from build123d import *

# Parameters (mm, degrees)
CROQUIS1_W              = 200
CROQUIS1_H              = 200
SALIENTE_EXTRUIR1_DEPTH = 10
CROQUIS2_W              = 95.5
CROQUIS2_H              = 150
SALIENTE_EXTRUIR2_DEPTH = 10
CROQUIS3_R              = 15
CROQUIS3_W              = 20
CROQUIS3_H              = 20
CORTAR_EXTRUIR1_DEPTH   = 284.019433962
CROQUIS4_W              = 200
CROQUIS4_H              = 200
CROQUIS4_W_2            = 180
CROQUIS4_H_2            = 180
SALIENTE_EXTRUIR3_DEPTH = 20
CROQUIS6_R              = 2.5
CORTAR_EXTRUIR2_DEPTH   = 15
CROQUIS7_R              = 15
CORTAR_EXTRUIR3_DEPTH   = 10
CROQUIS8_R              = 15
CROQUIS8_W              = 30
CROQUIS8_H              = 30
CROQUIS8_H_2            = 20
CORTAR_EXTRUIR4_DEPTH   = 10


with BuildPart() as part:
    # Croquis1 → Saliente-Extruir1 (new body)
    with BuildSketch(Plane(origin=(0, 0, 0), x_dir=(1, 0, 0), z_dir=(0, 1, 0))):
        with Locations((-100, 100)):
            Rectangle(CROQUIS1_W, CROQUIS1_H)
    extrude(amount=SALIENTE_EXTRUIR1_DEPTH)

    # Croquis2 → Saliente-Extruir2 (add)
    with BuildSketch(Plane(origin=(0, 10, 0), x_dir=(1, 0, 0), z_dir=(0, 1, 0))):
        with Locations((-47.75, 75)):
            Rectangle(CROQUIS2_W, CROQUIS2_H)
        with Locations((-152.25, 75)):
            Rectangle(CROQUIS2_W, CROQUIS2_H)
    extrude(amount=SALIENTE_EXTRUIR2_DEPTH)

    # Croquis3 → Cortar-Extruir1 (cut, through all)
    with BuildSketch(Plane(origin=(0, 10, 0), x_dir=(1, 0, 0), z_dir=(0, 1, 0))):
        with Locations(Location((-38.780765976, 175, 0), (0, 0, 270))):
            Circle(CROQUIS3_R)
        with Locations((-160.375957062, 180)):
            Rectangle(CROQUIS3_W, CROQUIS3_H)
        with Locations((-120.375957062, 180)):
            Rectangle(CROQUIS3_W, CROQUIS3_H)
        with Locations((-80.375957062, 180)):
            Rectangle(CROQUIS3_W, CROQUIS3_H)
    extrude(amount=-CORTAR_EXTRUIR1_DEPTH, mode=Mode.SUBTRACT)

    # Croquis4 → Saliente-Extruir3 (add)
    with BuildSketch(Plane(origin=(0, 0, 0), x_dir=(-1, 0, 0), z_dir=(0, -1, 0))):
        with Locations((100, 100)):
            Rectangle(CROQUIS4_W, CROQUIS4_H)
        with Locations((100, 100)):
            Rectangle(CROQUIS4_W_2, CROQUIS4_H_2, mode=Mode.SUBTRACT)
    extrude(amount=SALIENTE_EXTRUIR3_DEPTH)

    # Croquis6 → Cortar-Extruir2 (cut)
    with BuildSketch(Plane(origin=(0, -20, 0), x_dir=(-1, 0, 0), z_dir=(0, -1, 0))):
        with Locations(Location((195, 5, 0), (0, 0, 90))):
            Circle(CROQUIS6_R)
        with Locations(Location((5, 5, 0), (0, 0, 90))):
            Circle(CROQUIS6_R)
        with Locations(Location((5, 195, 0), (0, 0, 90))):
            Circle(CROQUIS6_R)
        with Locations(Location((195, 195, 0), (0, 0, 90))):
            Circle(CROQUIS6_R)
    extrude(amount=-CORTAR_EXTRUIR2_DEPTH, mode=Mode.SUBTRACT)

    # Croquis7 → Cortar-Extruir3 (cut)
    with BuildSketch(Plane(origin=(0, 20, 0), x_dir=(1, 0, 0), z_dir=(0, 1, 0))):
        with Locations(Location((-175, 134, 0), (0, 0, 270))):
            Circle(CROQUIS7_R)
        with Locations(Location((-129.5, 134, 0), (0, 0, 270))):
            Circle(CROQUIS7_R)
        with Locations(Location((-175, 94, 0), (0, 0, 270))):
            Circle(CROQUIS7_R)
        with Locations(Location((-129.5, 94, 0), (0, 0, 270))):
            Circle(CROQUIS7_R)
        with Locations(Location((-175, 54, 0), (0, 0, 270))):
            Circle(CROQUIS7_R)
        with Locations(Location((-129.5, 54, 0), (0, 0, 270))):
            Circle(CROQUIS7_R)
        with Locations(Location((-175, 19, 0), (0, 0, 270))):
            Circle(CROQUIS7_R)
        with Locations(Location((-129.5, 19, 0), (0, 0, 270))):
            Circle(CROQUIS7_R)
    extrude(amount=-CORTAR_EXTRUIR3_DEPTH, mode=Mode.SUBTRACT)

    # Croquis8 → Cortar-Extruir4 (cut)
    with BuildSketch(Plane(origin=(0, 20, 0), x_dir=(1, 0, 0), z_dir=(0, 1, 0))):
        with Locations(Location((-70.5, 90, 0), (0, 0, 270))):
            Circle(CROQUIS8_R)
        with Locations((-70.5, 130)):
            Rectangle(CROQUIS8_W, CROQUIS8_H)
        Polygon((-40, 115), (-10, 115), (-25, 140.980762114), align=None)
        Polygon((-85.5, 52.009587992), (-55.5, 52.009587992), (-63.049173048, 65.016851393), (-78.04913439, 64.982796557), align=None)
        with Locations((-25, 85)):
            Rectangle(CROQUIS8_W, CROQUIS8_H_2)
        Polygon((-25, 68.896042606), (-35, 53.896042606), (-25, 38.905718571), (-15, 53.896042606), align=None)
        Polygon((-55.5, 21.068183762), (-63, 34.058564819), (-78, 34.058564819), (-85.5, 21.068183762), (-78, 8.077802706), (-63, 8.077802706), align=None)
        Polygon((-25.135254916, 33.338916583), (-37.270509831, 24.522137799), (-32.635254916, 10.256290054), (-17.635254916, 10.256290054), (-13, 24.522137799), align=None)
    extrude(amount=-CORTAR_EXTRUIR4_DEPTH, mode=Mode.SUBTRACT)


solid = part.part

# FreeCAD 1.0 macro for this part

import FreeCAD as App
import Part
import Sketcher
from FreeCAD import Vector
Q = App.Units.Quantity


def add_polygon(sketch, points):
    """Adds a closed chain of lines whose ends are joined by coincident constraints."""
    first, n = sketch.GeometryCount, len(points)
    for a, b in zip(points, points[1:] + points[:1]):
        sketch.addGeometry(Part.LineSegment(App.Vector(*a, 0), App.Vector(*b, 0)), False)
    for i in range(n):
        sketch.addConstraint(Sketcher.Constraint("Coincident", first + i, 2, first + (i + 1) % n, 1))

doc = App.newDocument("Part")
body = doc.addObject("PartDesign::Body", "Body")

# Sketch on XZ plane
sketch1 = body.newObject("Sketcher::SketchObject", "Sketch")
sketch1.AttachmentSupport = (doc.getObject("XZ_Plane"), [""])
sketch1.MapMode = "FlatFace"
add_polygon(sketch1, [(-200, -200), (-200, 0), (0, 0), (0, -200)])  # lines 0-3
sketch1.addConstraint([
    Sketcher.Constraint("Vertical", 0),
    Sketcher.Constraint("Horizontal", 1),
    Sketcher.Constraint("Vertical", 2),
    Sketcher.Constraint("Horizontal", 3),
    Sketcher.Constraint("Coincident", 1, 2, -1, 1),
    Sketcher.Constraint("Equal", 3, 0),
    Sketcher.Constraint("DistanceX", 1, 1, 1, 2, 200.0),
])
pad1 = body.newObject("PartDesign::Pad", "Pad")
pad1.Profile = sketch1
pad1.Length = 10
pad1.Reversed = True

# Sketch on XZ plane
sketch2 = body.newObject("Sketcher::SketchObject", "Sketch001")
sketch2.AttachmentSupport = (doc.getObject("XZ_Plane"), [""])
sketch2.MapMode = "FlatFace"
sketch2.AttachmentOffset = App.Placement(Vector(0, 0, -10), App.Rotation())
add_polygon(sketch2, [(-96, -150), (-96, 0), (0, 0), (0, -150)])  # lines 0-3
add_polygon(sketch2, [(-200, -150), (-200, 0), (-104, 0), (-104, -150)])  # lines 4-7
sketch2.addConstraint([
    Sketcher.Constraint("Vertical", 0),
    Sketcher.Constraint("Horizontal", 1),
    Sketcher.Constraint("Vertical", 2),
    Sketcher.Constraint("Horizontal", 3),
    Sketcher.Constraint("Vertical", 4),
    Sketcher.Constraint("Horizontal", 5),
    Sketcher.Constraint("Vertical", 6),
    Sketcher.Constraint("Horizontal", 7),
    Sketcher.Constraint("Coincident", 1, 2, -1, 1),
    Sketcher.Constraint("PointOnObject", 4, 2, -1),
    Sketcher.Constraint("Horizontal", 3, 2, 6, 2),
    Sketcher.Constraint("Equal", 3, 5),
    Sketcher.Constraint("DistanceY", 0, 1, 0, 2, 150.0),
    Sketcher.Constraint("DistanceX", 1, 1, 1, 2, 95.5),
    Sketcher.Constraint("DistanceX", 4, 2, -1, 1, 200.0),
])
pad2 = body.newObject("PartDesign::Pad", "Pad001")
pad2.Profile = sketch2
pad2.Length = 10
pad2.Reversed = True

# Sketch on XZ plane
sketch3 = body.newObject("Sketcher::SketchObject", "Sketch002")
sketch3.AttachmentSupport = (doc.getObject("XZ_Plane"), [""])
sketch3.MapMode = "FlatFace"
sketch3.AttachmentOffset = App.Placement(Vector(0, 0, -10), App.Rotation())
sketch3.addGeometry(Part.Circle(Vector(-39, -175, 0), Vector(0, 0, 1), 15), False)  # 0
add_polygon(sketch3, [(-170, -190), (-170, -170), (-150, -170), (-150, -190)])  # lines 1-4
add_polygon(sketch3, [(-130, -190), (-130, -170), (-110, -170), (-110, -190)])  # lines 5-8
add_polygon(sketch3, [(-90, -190), (-90, -170), (-70, -170), (-70, -190)])  # lines 9-12
sketch3.addConstraint([
    Sketcher.Constraint("Vertical", 1),
    Sketcher.Constraint("Horizontal", 2),
    Sketcher.Constraint("Vertical", 3),
    Sketcher.Constraint("Horizontal", 4),
    Sketcher.Constraint("Vertical", 5),
    Sketcher.Constraint("Horizontal", 6),
    Sketcher.Constraint("Vertical", 7),
    Sketcher.Constraint("Horizontal", 8),
    Sketcher.Constraint("Vertical", 9),
    Sketcher.Constraint("Horizontal", 10),
    Sketcher.Constraint("Vertical", 11),
    Sketcher.Constraint("Horizontal", 12),
    Sketcher.Constraint("Horizontal", 2, 2, 5, 2),
    Sketcher.Constraint("Horizontal", 4, 2, 7, 2),
    Sketcher.Constraint("Horizontal", 6, 2, 9, 2),
    Sketcher.Constraint("Horizontal", 8, 2, 11, 2),
    Sketcher.Constraint("Equal", 4, 6),
    Sketcher.Constraint("Equal", 8, 10),
    Sketcher.Constraint("Equal", 12, 1),
    Sketcher.Constraint("Diameter", 0, 30.0),
    Sketcher.Constraint("DistanceX", 2, 1, 2, 2, 20.0),
    Sketcher.Constraint("DistanceY", 0, 3, -1, 1, 175.0),
    Sketcher.Constraint("DistanceY", 1, 2, -1, 1, 170.0),
    Sketcher.Constraint("DistanceX", 2, 2, 5, 2, 20.0),
    Sketcher.Constraint("DistanceX", 6, 2, 9, 2, 20.0),
    Sketcher.Constraint("DistanceX", 1, 2, 0, 3, 131.595191),
    Sketcher.Constraint("DistanceX", 0, 3, -1, 1, 38.780766),
])
pocket1 = body.newObject("PartDesign::Pocket", "Pocket")
pocket1.Profile = sketch3
pocket1.Type = "ThroughAll"
pocket1.Reversed = True

# Sketch on XZ plane
sketch4 = body.newObject("Sketcher::SketchObject", "Sketch003")
sketch4.AttachmentSupport = (doc.getObject("XZ_Plane"), [""])
sketch4.MapMode = "FlatFace"
add_polygon(sketch4, [(0, -200), (0, 0), (-200, 0), (-200, -200)])  # lines 0-3
add_polygon(sketch4, [(-190, -10), (-10, -10), (-10, -190), (-190, -190)])  # lines 4-7
sketch4.addConstraint([
    Sketcher.Constraint("Vertical", 0),
    Sketcher.Constraint("Horizontal", 1),
    Sketcher.Constraint("Vertical", 2),
    Sketcher.Constraint("Horizontal", 3),
    Sketcher.Constraint("Horizontal", 4),
    Sketcher.Constraint("Vertical", 5),
    Sketcher.Constraint("Horizontal", 6),
    Sketcher.Constraint("Vertical", 7),
    Sketcher.Constraint("Coincident", 0, 2, -1, 1),
    Sketcher.Constraint("Equal", 3, 0),
    Sketcher.Constraint("Equal", 6, 5),
    Sketcher.Constraint("DistanceX", 1, 2, 1, 1, 200.0),
    Sketcher.Constraint("DistanceX", 4, 1, 4, 2, 180.0),
    Sketcher.Constraint("DistanceX", 4, 2, -1, 1, 10.0),
    Sketcher.Constraint("DistanceY", 4, 2, -1, 1, 10.0),
])
pad3 = body.newObject("PartDesign::Pad", "Pad002")
pad3.Profile = sketch4
pad3.Length = 20

# Sketch on XZ plane
sketch5 = body.newObject("Sketcher::SketchObject", "Sketch004")
sketch5.AttachmentSupport = (doc.getObject("XZ_Plane"), [""])
sketch5.MapMode = "FlatFace"
sketch5.AttachmentOffset = App.Placement(Vector(0, 0, 20), App.Rotation())
sketch5.addGeometry([
    Part.Circle(Vector(-195, -5, 0), Vector(0, 0, 1), 2.5),
    Part.Circle(Vector(-5, -5, 0), Vector(0, 0, 1), 2.5),
    Part.Circle(Vector(-5, -195, 0), Vector(0, 0, 1), 2.5),
    Part.Circle(Vector(-195, -195, 0), Vector(0, 0, 1), 2.5),
], False)
sketch5.addConstraint([
    Sketcher.Constraint("Equal", 0, 1),
    Sketcher.Constraint("Equal", 1, 2),
    Sketcher.Constraint("Equal", 2, 3),
    Sketcher.Constraint("Horizontal", 0, 3, 1, 3),
    Sketcher.Constraint("Horizontal", 2, 3, 3, 3),
    Sketcher.Constraint("Vertical", 1, 3, 2, 3),
    Sketcher.Constraint("Vertical", 0, 3, 3, 3),
    Sketcher.Constraint("Diameter", 0, 5.0),
    Sketcher.Constraint("DistanceX", 0, 3, -1, 1, 195.0),
    Sketcher.Constraint("DistanceY", 0, 3, -1, 1, 5.0),
    Sketcher.Constraint("DistanceX", 1, 3, -1, 1, 5.0),
    Sketcher.Constraint("DistanceY", 2, 3, -1, 1, 195.0),
])
pocket2 = body.newObject("PartDesign::Pocket", "Pocket001")
pocket2.Profile = sketch5
pocket2.Length = 15

# Sketch on XZ plane
sketch6 = body.newObject("Sketcher::SketchObject", "Sketch005")
sketch6.AttachmentSupport = (doc.getObject("XZ_Plane"), [""])
sketch6.MapMode = "FlatFace"
sketch6.AttachmentOffset = App.Placement(Vector(0, 0, -20), App.Rotation())
sketch6.addGeometry([
    Part.Circle(Vector(-175, -134, 0), Vector(0, 0, 1), 15),  # 0
    Part.Circle(Vector(-130, -134, 0), Vector(0, 0, 1), 15),  # 1
    Part.Circle(Vector(-175, -94, 0), Vector(0, 0, 1), 15),  # 2
    Part.Circle(Vector(-130, -94, 0), Vector(0, 0, 1), 15),  # 3
    Part.Circle(Vector(-175, -54, 0), Vector(0, 0, 1), 15),  # 4
    Part.Circle(Vector(-130, -54, 0), Vector(0, 0, 1), 15),  # 5
    Part.Circle(Vector(-175, -19, 0), Vector(0, 0, 1), 15),  # 6
    Part.Circle(Vector(-130, -19, 0), Vector(0, 0, 1), 15),  # 7
], False)
sketch6.addConstraint([
    Sketcher.Constraint("Equal", 0, 1),
    Sketcher.Constraint("Equal", 1, 2),
    Sketcher.Constraint("Equal", 2, 3),
    Sketcher.Constraint("Equal", 3, 4),
    Sketcher.Constraint("Equal", 4, 5),
    Sketcher.Constraint("Equal", 5, 6),
    Sketcher.Constraint("Equal", 6, 7),
    Sketcher.Constraint("Horizontal", 0, 3, 1, 3),
    Sketcher.Constraint("Horizontal", 2, 3, 3, 3),
    Sketcher.Constraint("Horizontal", 4, 3, 5, 3),
    Sketcher.Constraint("Horizontal", 6, 3, 7, 3),
    Sketcher.Constraint("Vertical", 0, 3, 2, 3),
    Sketcher.Constraint("Vertical", 1, 3, 3, 3),
    Sketcher.Constraint("Vertical", 2, 3, 4, 3),
    Sketcher.Constraint("Vertical", 3, 3, 5, 3),
    Sketcher.Constraint("Vertical", 4, 3, 6, 3),
    Sketcher.Constraint("Vertical", 5, 3, 7, 3),
    Sketcher.Constraint("Diameter", 0, 30.0),
    Sketcher.Constraint("DistanceX", 0, 3, -1, 1, 175.0),
    Sketcher.Constraint("DistanceY", 0, 3, -1, 1, 134.0),
    Sketcher.Constraint("DistanceY", 2, 3, -1, 1, 94.0),
    Sketcher.Constraint("DistanceY", 4, 3, -1, 1, 54.0),
    Sketcher.Constraint("DistanceY", 6, 3, -1, 1, 19.0),
    Sketcher.Constraint("DistanceX", 1, 3, -1, 1, 129.5),
])
pocket3 = body.newObject("PartDesign::Pocket", "Pocket002")
pocket3.Profile = sketch6
pocket3.Length = 10
pocket3.Reversed = True

# Sketch on XZ plane
sketch7 = body.newObject("Sketcher::SketchObject", "Sketch006")
sketch7.AttachmentSupport = (doc.getObject("XZ_Plane"), [""])
sketch7.MapMode = "FlatFace"
sketch7.AttachmentOffset = App.Placement(Vector(0, 0, -20), App.Rotation())
sketch7.addGeometry(Part.Circle(Vector(-70, -90, 0), Vector(0, 0, 1), 15), False)  # 0
add_polygon(sketch7, [(-86, -145), (-86, -115), (-56, -115), (-56, -145)])  # lines 1-4
add_polygon(sketch7, [(-40, -115), (-10, -115), (-25, -141)])  # lines 5-7
add_polygon(sketch7, [(-86, -52), (-56, -52), (-63, -65), (-78, -65)])  # lines 8-11
add_polygon(sketch7, [(-40, -95), (-40, -75), (-10, -75), (-10, -95)])  # lines 12-15
add_polygon(sketch7, [(-25, -69), (-35, -54), (-25, -39), (-15, -54)])  # lines 16-19
add_polygon(sketch7, [(-56, -21), (-63, -34), (-78, -34), (-86, -21), (-78, -8), (-63, -8)])  # lines 20-25
add_polygon(sketch7, [(-25, -33), (-37, -25), (-33, -10), (-18, -10), (-13, -25)])  # lines 26-30
sketch7.addConstraint([
    Sketcher.Constraint("Vertical", 1),
    Sketcher.Constraint("Horizontal", 2),
    Sketcher.Constraint("Vertical", 3),
    Sketcher.Constraint("Horizontal", 4),
    Sketcher.Constraint("Horizontal", 5),
    Sketcher.Constraint("Horizontal", 8),
    Sketcher.Constraint("Vertical", 12),
    Sketcher.Constraint("Horizontal", 13),
    Sketcher.Constraint("Vertical", 14),
    Sketcher.Constraint("Horizontal", 15),
    Sketcher.Constraint("Horizontal", 21),
    Sketcher.Constraint("Horizontal", 24),
    Sketcher.Constraint("Horizontal", 28),
    Sketcher.Constraint("Parallel", 6, 20),
    Sketcher.Constraint("Parallel", 7, 22),
    Sketcher.Constraint("Parallel", 20, 23),
    Sketcher.Constraint("Parallel", 22, 25),
    Sketcher.Constraint("Horizontal", 2, 2, 5, 2),
    Sketcher.Constraint("Horizontal", 16, 2, 18, 2),
    Sketcher.Constraint("Horizontal", 22, 2, 25, 2),
    Sketcher.Constraint("Horizontal", 26, 2, 29, 2),
    Sketcher.Constraint("Vertical", 3, 2, 8, 2),
    Sketcher.Constraint("Vertical", 4, 2, 11, 2),
    Sketcher.Constraint("Vertical", 7, 2, 12, 2),
    Sketcher.Constraint("Vertical", 5, 2, 13, 2),
    Sketcher.Constraint("Vertical", 6, 2, 17, 2),
    Sketcher.Constraint("Vertical", 17, 2, 19, 2),
    Sketcher.Constraint("Vertical", 11, 2, 22, 2),
    Sketcher.Constraint("Vertical", 21, 2, 23, 2),
    Sketcher.Constraint("Vertical", 20, 2, 24, 2),
    Sketcher.Constraint("Vertical", 8, 2, 25, 2),
    Sketcher.Constraint("Equal", 4, 5),
    Sketcher.Constraint("Equal", 24, 28),
    Sketcher.Constraint("Equal", 15, 1),
    Sketcher.Constraint("Equal", 17, 18),
    Sketcher.Constraint("Equal", 10, 20),
    Sketcher.Constraint("Equal", 25, 26),
    Sketcher.Constraint("Equal", 26, 27),
    Sketcher.Constraint("Equal", 27, 29),
    Sketcher.Constraint("Equal", 29, 30),
    Sketcher.Constraint("Diameter", 0, 30.0),
    Sketcher.Constraint("DistanceX", 2, 1, 2, 2, 30.0),
    Sketcher.Constraint("DistanceX", 21, 2, 21, 1, 15.0),
    Sketcher.Constraint("DistanceY", 12, 1, 12, 2, 20.0),
    Sketcher.Constraint("Angle", 6, Q("-120 deg")),
    Sketcher.Constraint("Angle", 26, Q("144 deg")),
    Sketcher.Constraint("DistanceY", 0, 3, -1, 1, 90.0),
    Sketcher.Constraint("DistanceY", 1, 2, -1, 1, 115.0),
    Sketcher.Constraint("DistanceX", 5, 2, -1, 1, 10.0),
    Sketcher.Constraint("DistanceY", 12, 2, -1, 1, 75.0),
    Sketcher.Constraint("DistanceX", 16, 2, -1, 1, 35.0),
    Sketcher.Constraint("DistanceX", 20, 2, -1, 1, 63.0),
    Sketcher.Constraint("DistanceX", 29, 2, -1, 1, 13.0),
    Sketcher.Constraint("DistanceX", 1, 2, 0, 3, 15.0),
    Sketcher.Constraint("DistanceY", 19, 2, 16, 2, 15.0),
    Sketcher.Constraint("Distance", 11, 14.9606),
    Sketcher.Constraint("DistanceY", 17, 2, 30, 2, 5.566802),
    Sketcher.Constraint("DistanceY", 9, 2, -1, 1, 65.016851),
    Sketcher.Constraint("DistanceY", 17, 2, -1, 1, 38.905719),
    Sketcher.Constraint("DistanceY", 10, 2, 8, 2, 12.973209),
    Sketcher.Constraint("DistanceY", 9, 2, 16, 2, 11.120809),
    Sketcher.Constraint("DistanceY", 8, 2, 17, 2, 13.103869),
    Sketcher.Constraint("DistanceY", 10, 2, 20, 2, 30.924232),
])
pocket4 = body.newObject("PartDesign::Pocket", "Pocket003")
pocket4.Profile = sketch7
pocket4.Length = 10
pocket4.Reversed = True

doc.recompute()
